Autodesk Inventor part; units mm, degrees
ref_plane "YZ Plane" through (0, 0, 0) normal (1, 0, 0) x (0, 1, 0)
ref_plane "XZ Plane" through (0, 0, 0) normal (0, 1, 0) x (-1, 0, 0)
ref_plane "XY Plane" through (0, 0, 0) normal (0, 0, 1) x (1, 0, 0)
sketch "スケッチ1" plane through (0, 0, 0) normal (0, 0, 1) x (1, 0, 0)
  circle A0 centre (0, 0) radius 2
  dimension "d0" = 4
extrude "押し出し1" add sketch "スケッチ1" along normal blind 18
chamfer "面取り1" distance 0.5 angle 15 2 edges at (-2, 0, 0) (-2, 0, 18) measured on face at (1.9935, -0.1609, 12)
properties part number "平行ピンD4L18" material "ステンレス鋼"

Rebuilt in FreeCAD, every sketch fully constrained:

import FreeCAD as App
import Part
import Sketcher


def edges_at(feature, points):
    """Names of the edges that pass closest to the given points."""
    edges = feature.Shape.Edges
    near = lambda p: min(range(len(edges)), key=lambda i: edges[i].distToShape(Part.Vertex(*p))[0])
    return sorted({f"Edge{near(p) + 1}" for p in points})

doc = App.newDocument("Part")
body = doc.addObject("PartDesign::Body", "Body")

# Sketch on XY plane
sketch1 = body.newObject("Sketcher::SketchObject", "Sketch")
sketch1.AttachmentSupport = (doc.getObject("XY_Plane"), [""])
sketch1.MapMode = "FlatFace"
sketch1.addGeometry(Part.Circle(App.Vector(0, 0, 0), App.Vector(0, 0, 1), 2), False)
sketch1.addConstraint([
    Sketcher.Constraint("Coincident", 0, 3, -1, 1),
    Sketcher.Constraint("Diameter", 0, 4.0),
])
pad1 = body.newObject("PartDesign::Pad", "Pad")
pad1.Profile = sketch1
pad1.Length = 18
doc.recompute()

chamfer = body.newObject("PartDesign::Chamfer", "Chamfer")
chamfer.Base = (pad1, edges_at(pad1, [(-2, 0, 0), (-2, 0, 18)]))
chamfer.ChamferType = "Distance and Angle"
chamfer.Size = 0.5
chamfer.Angle = 15

doc.recompute()
